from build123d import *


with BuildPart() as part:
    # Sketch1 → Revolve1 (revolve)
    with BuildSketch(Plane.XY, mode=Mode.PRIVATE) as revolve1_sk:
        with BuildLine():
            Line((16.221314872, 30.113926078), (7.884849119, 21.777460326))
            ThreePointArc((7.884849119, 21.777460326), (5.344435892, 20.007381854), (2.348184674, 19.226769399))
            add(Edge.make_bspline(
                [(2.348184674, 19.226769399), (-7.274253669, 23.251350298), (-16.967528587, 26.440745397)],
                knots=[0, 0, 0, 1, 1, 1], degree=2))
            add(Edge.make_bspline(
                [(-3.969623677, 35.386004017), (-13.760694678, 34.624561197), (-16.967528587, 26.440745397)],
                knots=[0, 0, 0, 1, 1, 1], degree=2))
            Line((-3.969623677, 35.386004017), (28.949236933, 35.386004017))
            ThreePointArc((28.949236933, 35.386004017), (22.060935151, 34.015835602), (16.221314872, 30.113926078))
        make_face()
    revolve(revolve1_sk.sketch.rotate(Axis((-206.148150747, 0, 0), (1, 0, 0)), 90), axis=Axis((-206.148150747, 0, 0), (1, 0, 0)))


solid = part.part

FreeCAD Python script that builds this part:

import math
import FreeCAD as App
import Part
import Sketcher
Q = App.Units.Quantity

doc = App.newDocument("Part")
body = doc.addObject("PartDesign::Body", "Body")

sketch1 = body.newObject("Sketcher::SketchObject", "Sketch")
sketch1.AttachmentSupport = (doc.getObject("XY_Plane"), [""])
sketch1.MapMode = "FlatFace"
sketch1.addGeometry(Part.LineSegment(App.Vector(7.884849, 21.77746, 0), App.Vector(16.221315, 30.113926, 0)), False)
sketch1.addGeometry(Part.ArcOfCircle(Part.Circle(App.Vector(28.949237, 17.386004, 0), App.Vector(0, 0, 1), 18), math.radians(90), math.radians(135)), False)
sketch1.addGeometry(Part.LineSegment(App.Vector(28.949237, 35.386004, 0), App.Vector(-3.969624, 35.386004, 0)), False)
sketch1.addGeometry(Part.BSplineCurve([App.Vector(-3.969624, 35.386004, 0), App.Vector(-13.760695, 34.624561, 0), App.Vector(-16.967529, 26.440745, 0)], [3, 3], [0, 1], False, 2, [1, 1, 1], False), False)
sketch1.addGeometry(Part.BSplineCurve([App.Vector(2.348185, 19.226769, 0), App.Vector(-7.274254, 23.25135, 0), App.Vector(-16.967529, 26.440745, 0)], [3, 3], [0, 1], False, 2, [1, 1, 1], False), False)
sketch1.addGeometry(Part.ArcOfCircle(Part.Circle(App.Vector(1.662309, 28, 0), App.Vector(0, 0, 1), 8.8), math.radians(-85.529812), math.radians(-45)), False)
sketch1.addConstraint(Sketcher.Constraint("Block", 3))
sketch1.addConstraint(Sketcher.Constraint("Block", 4))
sketch1.addConstraint(Sketcher.Constraint("Tangent", 0, 2, 1, 2))
sketch1.addConstraint(Sketcher.Constraint("Tangent", 1, 1, 2, 1))
sketch1.addConstraint(Sketcher.Constraint("Coincident", 2, 2, 3, 1))
sketch1.addConstraint(Sketcher.Constraint("Coincident", 4, 1, 5, 1))
sketch1.addConstraint(Sketcher.Constraint("Tangent", 5, 2, 0, 1))
sketch1.addConstraint(Sketcher.Constraint("Horizontal", 2))
sketch1.addConstraint(Sketcher.Constraint("Radius", 1, Q("18 mm")))
sketch1.addConstraint(Sketcher.Constraint("Radius", 5, Q("8.8 mm")))
sketch1.addConstraint(Sketcher.Constraint("Angle", 0, Q("45 deg")))
sketch1.addConstraint(Sketcher.Constraint("DistanceY", -1, 1, 5, 3, Q("28 mm")))
revolution = body.newObject("PartDesign::Revolution", "Revolution")
revolution.Profile = sketch1
revolution.ReferenceAxis = (sketch1, ["H_Axis"])
revolution.Angle = 360

doc.recompute()
